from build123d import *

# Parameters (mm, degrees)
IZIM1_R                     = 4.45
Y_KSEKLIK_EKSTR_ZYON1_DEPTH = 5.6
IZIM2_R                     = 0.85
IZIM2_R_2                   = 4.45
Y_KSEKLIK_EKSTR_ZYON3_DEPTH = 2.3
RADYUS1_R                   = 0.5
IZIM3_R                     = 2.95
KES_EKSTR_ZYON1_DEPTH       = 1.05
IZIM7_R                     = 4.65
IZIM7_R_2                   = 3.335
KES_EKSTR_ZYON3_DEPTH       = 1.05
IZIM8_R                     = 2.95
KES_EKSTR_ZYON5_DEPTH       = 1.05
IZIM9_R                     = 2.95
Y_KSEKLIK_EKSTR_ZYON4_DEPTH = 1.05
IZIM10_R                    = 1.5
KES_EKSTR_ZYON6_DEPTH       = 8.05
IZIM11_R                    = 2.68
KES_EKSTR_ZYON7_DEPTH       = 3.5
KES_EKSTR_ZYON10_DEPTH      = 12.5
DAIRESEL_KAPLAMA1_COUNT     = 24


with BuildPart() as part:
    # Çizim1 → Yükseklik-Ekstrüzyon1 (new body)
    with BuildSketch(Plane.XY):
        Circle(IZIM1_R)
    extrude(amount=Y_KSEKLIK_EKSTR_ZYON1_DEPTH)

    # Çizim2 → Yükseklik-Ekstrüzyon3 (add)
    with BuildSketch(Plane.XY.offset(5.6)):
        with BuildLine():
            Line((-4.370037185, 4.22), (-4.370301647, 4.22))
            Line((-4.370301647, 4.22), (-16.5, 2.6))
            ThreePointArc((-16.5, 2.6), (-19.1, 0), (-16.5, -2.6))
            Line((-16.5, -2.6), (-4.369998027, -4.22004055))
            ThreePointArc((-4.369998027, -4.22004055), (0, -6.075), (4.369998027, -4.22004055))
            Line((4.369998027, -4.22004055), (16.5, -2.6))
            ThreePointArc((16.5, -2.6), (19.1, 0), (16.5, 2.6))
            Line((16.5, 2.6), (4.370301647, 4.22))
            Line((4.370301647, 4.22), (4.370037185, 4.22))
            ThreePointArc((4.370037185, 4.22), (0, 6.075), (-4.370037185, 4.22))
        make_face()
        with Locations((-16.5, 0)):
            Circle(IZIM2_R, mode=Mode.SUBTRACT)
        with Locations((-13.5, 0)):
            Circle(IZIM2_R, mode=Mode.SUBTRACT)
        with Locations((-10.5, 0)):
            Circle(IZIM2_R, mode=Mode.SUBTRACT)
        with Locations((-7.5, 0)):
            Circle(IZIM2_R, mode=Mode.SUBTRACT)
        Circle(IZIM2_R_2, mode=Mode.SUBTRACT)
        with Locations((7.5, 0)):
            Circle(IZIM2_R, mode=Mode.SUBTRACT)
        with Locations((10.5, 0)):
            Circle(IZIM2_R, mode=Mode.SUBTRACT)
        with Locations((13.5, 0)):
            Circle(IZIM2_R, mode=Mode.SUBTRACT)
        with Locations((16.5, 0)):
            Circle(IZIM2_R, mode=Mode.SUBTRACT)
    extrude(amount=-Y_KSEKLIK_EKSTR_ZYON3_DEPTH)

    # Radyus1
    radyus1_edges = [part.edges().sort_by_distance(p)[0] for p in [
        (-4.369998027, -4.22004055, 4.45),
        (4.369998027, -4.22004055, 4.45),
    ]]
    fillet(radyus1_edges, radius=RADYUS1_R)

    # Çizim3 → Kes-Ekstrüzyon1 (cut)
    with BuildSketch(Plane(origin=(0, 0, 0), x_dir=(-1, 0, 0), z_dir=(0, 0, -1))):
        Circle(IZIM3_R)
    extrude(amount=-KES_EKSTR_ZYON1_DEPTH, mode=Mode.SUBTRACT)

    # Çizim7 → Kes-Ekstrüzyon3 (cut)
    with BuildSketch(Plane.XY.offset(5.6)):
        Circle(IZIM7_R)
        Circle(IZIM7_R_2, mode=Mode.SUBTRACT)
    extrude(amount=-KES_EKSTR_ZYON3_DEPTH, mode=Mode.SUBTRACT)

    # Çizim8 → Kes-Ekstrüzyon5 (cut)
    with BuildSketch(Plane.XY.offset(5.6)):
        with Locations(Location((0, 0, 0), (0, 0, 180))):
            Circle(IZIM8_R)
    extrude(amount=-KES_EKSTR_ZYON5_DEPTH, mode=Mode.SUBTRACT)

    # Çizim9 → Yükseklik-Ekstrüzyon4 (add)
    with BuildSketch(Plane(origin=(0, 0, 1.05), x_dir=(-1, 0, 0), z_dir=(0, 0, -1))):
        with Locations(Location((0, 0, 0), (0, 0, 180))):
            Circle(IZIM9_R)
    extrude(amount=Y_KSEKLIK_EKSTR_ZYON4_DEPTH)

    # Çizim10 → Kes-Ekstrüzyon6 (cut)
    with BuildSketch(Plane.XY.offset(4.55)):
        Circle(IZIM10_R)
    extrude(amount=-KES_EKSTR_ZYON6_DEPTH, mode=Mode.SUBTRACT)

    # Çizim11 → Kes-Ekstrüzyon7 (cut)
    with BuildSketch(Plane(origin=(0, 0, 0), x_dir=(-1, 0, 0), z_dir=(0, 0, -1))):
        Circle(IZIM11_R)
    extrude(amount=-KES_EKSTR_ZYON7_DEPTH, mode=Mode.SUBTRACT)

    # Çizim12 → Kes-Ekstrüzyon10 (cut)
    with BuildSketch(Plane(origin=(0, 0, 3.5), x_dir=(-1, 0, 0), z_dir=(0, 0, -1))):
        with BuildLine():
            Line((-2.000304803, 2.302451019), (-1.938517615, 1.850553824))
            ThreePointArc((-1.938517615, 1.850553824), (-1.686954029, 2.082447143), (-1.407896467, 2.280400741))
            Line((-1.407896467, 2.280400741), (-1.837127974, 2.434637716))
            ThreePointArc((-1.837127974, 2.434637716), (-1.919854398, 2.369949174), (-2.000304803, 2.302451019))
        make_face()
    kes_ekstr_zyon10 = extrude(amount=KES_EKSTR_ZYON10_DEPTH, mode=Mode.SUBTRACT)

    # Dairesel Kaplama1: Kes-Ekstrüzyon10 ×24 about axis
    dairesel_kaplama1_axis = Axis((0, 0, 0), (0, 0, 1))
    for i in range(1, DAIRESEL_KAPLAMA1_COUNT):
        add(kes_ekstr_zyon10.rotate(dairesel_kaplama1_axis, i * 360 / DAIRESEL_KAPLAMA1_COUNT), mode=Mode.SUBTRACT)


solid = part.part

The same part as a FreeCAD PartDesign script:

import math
import FreeCAD as App
import Part
import Sketcher
Q = App.Units.Quantity


def edges_at(feature, points):
    """Names of the edges that pass closest to the given points."""
    edges = feature.Shape.Edges
    near = lambda p: min(range(len(edges)), key=lambda i: edges[i].distToShape(Part.Vertex(*p))[0])
    return sorted({f"Edge{near(p) + 1}" for p in points})

doc = App.newDocument("Part")
body = doc.addObject("PartDesign::Body", "Body")

# Sketch on XY plane
sketch1 = doc.addObject("Sketcher::SketchObject", "Sketch")
body.addObject(sketch1)
sketch1.AttachmentSupport = (doc.XY_Plane, [""])
sketch1.MapMode = "FlatFace"
sketch1.addGeometry(Part.Circle(App.Vector(0, 0, 0), App.Vector(0, 0, 1), 4.45), False)
sketch1.addConstraint([
    Sketcher.Constraint("Coincident", 0, 3, -1, 1),
    Sketcher.Constraint("Diameter", 0, Q("8.9 mm")),
])
pad1 = doc.addObject("PartDesign::Pad", "Pad")
body.addObject(pad1)
pad1.Profile = sketch1
pad1.Length = 5.6

# Sketch on XY plane
sketch2 = doc.addObject("Sketcher::SketchObject", "Sketch001")
body.addObject(sketch2)
sketch2.AttachmentSupport = (doc.XY_Plane, [""])
sketch2.MapMode = "FlatFace"
sketch2.AttachmentOffset = App.Placement(App.Vector(0, 0, 5.6), App.Rotation())
sketch2.addGeometry([
    Part.LineSegment(App.Vector(-4.370037, 4.22, 0), App.Vector(-4.370302, 4.22, 0)),  # 0
    Part.LineSegment(App.Vector(-4.370302, 4.22, 0), App.Vector(-16.5, 2.6, 0)),  # 1
    Part.ArcOfCircle(Part.Circle(App.Vector(-16.5, 0, 0), App.Vector(0, 0, 1), 2.6), math.radians(90), math.radians(270)),  # 2
    Part.LineSegment(App.Vector(-16.5, -2.6, 0), App.Vector(-4.369998, -4.220041, 0)),  # 3
    Part.ArcOfCircle(Part.Circle(App.Vector(0, 0, 0), App.Vector(0, 0, 1), 6.075), math.radians(-136.000119), math.radians(-43.999881)),  # 4
    Part.LineSegment(App.Vector(4.369998, -4.220041, 0), App.Vector(16.5, -2.6, 0)),  # 5
    Part.ArcOfCircle(Part.Circle(App.Vector(16.5, 0, 0), App.Vector(0, 0, 1), 2.6), math.radians(-90), math.radians(90)),  # 6
    Part.LineSegment(App.Vector(16.5, 2.6, 0), App.Vector(4.370302, 4.22, 0)),  # 7
    Part.LineSegment(App.Vector(4.370302, 4.22, 0), App.Vector(4.370037, 4.22, 0)),  # 8
    Part.ArcOfCircle(Part.Circle(App.Vector(0, 0, 0), App.Vector(0, 0, 1), 6.075), math.radians(43.99935), math.radians(136.00065)),  # 9
    Part.Circle(App.Vector(-16.5, 0, 0), App.Vector(0, 0, 1), 0.85),  # 10
    Part.Circle(App.Vector(-13.5, 0, 0), App.Vector(0, 0, 1), 0.85),  # 11
    Part.Circle(App.Vector(-10.5, 0, 0), App.Vector(0, 0, 1), 0.85),  # 12
    Part.Circle(App.Vector(-7.5, 0, 0), App.Vector(0, 0, 1), 0.85),  # 13
    Part.Circle(App.Vector(0, 0, 0), App.Vector(0, 0, 1), 4.45),  # 14
    Part.Circle(App.Vector(7.5, 0, 0), App.Vector(0, 0, 1), 0.85),  # 15
    Part.Circle(App.Vector(10.5, 0, 0), App.Vector(0, 0, 1), 0.85),  # 16
    Part.Circle(App.Vector(13.5, 0, 0), App.Vector(0, 0, 1), 0.85),  # 17
    Part.Circle(App.Vector(16.5, 0, 0), App.Vector(0, 0, 1), 0.85),  # 18
], False)
sketch2.addConstraint([
    Sketcher.Constraint("Coincident", 0, 2, 1, 1),
    Sketcher.Constraint("Coincident", 1, 2, 2, 1),
    Sketcher.Constraint("Coincident", 2, 2, 3, 1),
    Sketcher.Constraint("Coincident", 3, 2, 4, 1),
    Sketcher.Constraint("Coincident", 4, 2, 5, 1),
    Sketcher.Constraint("Coincident", 5, 2, 6, 1),
    Sketcher.Constraint("Coincident", 6, 2, 7, 1),
    Sketcher.Constraint("Coincident", 7, 2, 8, 1),
    Sketcher.Constraint("Coincident", 8, 2, 9, 1),
    Sketcher.Constraint("Coincident", 9, 2, 0, 1),
    Sketcher.Constraint("Horizontal", 0),
    Sketcher.Constraint("Horizontal", 8),
    Sketcher.Constraint("Coincident", 4, 3, -1, 1),
    Sketcher.Constraint("Coincident", 9, 3, -1, 1),
    Sketcher.Constraint("Coincident", 14, 3, -1, 1),
    Sketcher.Constraint("Coincident", 10, 3, 2, 3),
    Sketcher.Constraint("Coincident", 18, 3, 6, 3),
    Sketcher.Constraint("Equal", 2, 6),
    Sketcher.Constraint("Equal", 4, 9),
    Sketcher.Constraint("Equal", 10, 11),
    Sketcher.Constraint("Equal", 11, 12),
    Sketcher.Constraint("Equal", 12, 13),
    Sketcher.Constraint("Equal", 13, 15),
    Sketcher.Constraint("Equal", 15, 16),
    Sketcher.Constraint("Equal", 16, 17),
    Sketcher.Constraint("Equal", 17, 18),
    Sketcher.Constraint("Symmetric", 2, 3, 6, 3, -1, 1),
    Sketcher.Constraint("Symmetric", 13, 3, 15, 3, -1, 1),
    Sketcher.Constraint("Symmetric", 12, 3, 16, 3, -1, 1),
    Sketcher.Constraint("Symmetric", 11, 3, 17, 3, -1, 1),
    Sketcher.Constraint("Symmetric", 2, 2, 5, 2, -2),
    Sketcher.Constraint("Symmetric", 0, 2, 7, 2, -2),
    Sketcher.Constraint("PointOnObject", 11, 3, -1),
    Sketcher.Constraint("PointOnObject", 12, 3, -1),
    Sketcher.Constraint("PointOnObject", 13, 3, -1),
    Sketcher.Constraint("Parallel", 1, 5),
    Sketcher.Constraint("Parallel", 3, 7),
    Sketcher.Constraint("Horizontal", 3, 2, 4, 2),
    Sketcher.Constraint("Vertical", 10, 3, 1, 2),
    Sketcher.Constraint("Vertical", 1, 2, 2, 2),
    Sketcher.Constraint("Diameter", 10, Q("1.7 mm")),
    Sketcher.Constraint("Diameter", 14, Q("8.9 mm")),
    Sketcher.Constraint("Radius", 2, Q("2.6 mm")),
    Sketcher.Constraint("Radius", 4, Q("6.075 mm")),
    Sketcher.Constraint("DistanceX", 2, 3, 6, 3, Q("33 mm")),
    Sketcher.Constraint("DistanceX", 2, 3, 11, 3, Q("3 mm")),
    Sketcher.Constraint("DistanceX", 11, 3, 12, 3, Q("3 mm")),
    Sketcher.Constraint("DistanceX", 12, 3, 13, 3, Q("3 mm")),
    Sketcher.Constraint("DistanceY", -1, 1, 0, 2, Q("4.22 mm")),
    Sketcher.Constraint("DistanceX", 3, 2, -1, 1, Q("4.369998 mm")),
])
pad2 = doc.addObject("PartDesign::Pad", "Pad001")
body.addObject(pad2)
pad2.Profile = sketch2
pad2.Length = 2.3
pad2.Reversed = True
doc.recompute()

fillet = doc.addObject("PartDesign::Fillet", "Fillet")
body.addObject(fillet)
fillet.Base = (pad2, edges_at(pad2, [(-4.37, -4.22, 4.45), (4.37, -4.22, 4.45)]))
fillet.Radius = 0.5

# Sketch on XY plane
sketch3 = doc.addObject("Sketcher::SketchObject", "Sketch002")
body.addObject(sketch3)
sketch3.AttachmentSupport = (doc.XY_Plane, [""])
sketch3.MapMode = "FlatFace"
sketch3.addGeometry(Part.Circle(App.Vector(0, 0, 0), App.Vector(0, 0, 1), 2.95), False)
sketch3.addConstraint([
    Sketcher.Constraint("Coincident", 0, 3, -1, 1),
    Sketcher.Constraint("Diameter", 0, Q("5.9 mm")),
])
pocket1 = doc.addObject("PartDesign::Pocket", "Pocket")
body.addObject(pocket1)
pocket1.Profile = sketch3
pocket1.Length = 1.05
pocket1.Reversed = True

# Sketch on XY plane
sketch4 = doc.addObject("Sketcher::SketchObject", "Sketch003")
body.addObject(sketch4)
sketch4.AttachmentSupport = (doc.XY_Plane, [""])
sketch4.MapMode = "FlatFace"
sketch4.AttachmentOffset = App.Placement(App.Vector(0, 0, 5.6), App.Rotation())
sketch4.addGeometry([
    Part.Circle(App.Vector(0, 0, 0), App.Vector(0, 0, 1), 4.65),
    Part.Circle(App.Vector(0, 0, 0), App.Vector(0, 0, 1), 3.335),
], False)
sketch4.addConstraint([
    Sketcher.Constraint("Coincident", 0, 3, -1, 1),
    Sketcher.Constraint("Coincident", 1, 3, -1, 1),
    Sketcher.Constraint("Diameter", 0, Q("9.3 mm")),
    Sketcher.Constraint("Diameter", 1, Q("6.67 mm")),
])
pocket2 = doc.addObject("PartDesign::Pocket", "Pocket001")
body.addObject(pocket2)
pocket2.Profile = sketch4
pocket2.Length = 1.05

# Sketch on XY plane
sketch5 = doc.addObject("Sketcher::SketchObject", "Sketch004")
body.addObject(sketch5)
sketch5.AttachmentSupport = (doc.XY_Plane, [""])
sketch5.MapMode = "FlatFace"
sketch5.AttachmentOffset = App.Placement(App.Vector(0, 0, 5.6), App.Rotation())
sketch5.addGeometry(Part.Circle(App.Vector(0, 0, 0), App.Vector(0, 0, 1), 2.95), False)
sketch5.addConstraint([
    Sketcher.Constraint("Coincident", 0, 3, -1, 1),
    Sketcher.Constraint("Diameter", 0, Q("5.9 mm")),
])
pocket3 = doc.addObject("PartDesign::Pocket", "Pocket002")
body.addObject(pocket3)
pocket3.Profile = sketch5
pocket3.Length = 1.05

# Sketch on XY plane
sketch6 = doc.addObject("Sketcher::SketchObject", "Sketch005")
body.addObject(sketch6)
sketch6.AttachmentSupport = (doc.XY_Plane, [""])
sketch6.MapMode = "FlatFace"
sketch6.AttachmentOffset = App.Placement(App.Vector(0, 0, 1.05), App.Rotation())
sketch6.addGeometry(Part.Circle(App.Vector(0, 0, 0), App.Vector(0, 0, 1), 2.95), False)
sketch6.addConstraint([
    Sketcher.Constraint("Coincident", 0, 3, -1, 1),
    Sketcher.Constraint("Diameter", 0, Q("5.9 mm")),
])
pad3 = doc.addObject("PartDesign::Pad", "Pad002")
body.addObject(pad3)
pad3.Profile = sketch6
pad3.Length = 1.05
pad3.Reversed = True

# Sketch on XY plane
sketch7 = doc.addObject("Sketcher::SketchObject", "Sketch006")
body.addObject(sketch7)
sketch7.AttachmentSupport = (doc.XY_Plane, [""])
sketch7.MapMode = "FlatFace"
sketch7.AttachmentOffset = App.Placement(App.Vector(0, 0, 4.55), App.Rotation())
sketch7.addGeometry(Part.Circle(App.Vector(0, 0, 0), App.Vector(0, 0, 1), 1.5), False)
sketch7.addConstraint([
    Sketcher.Constraint("Coincident", 0, 3, -1, 1),
    Sketcher.Constraint("Diameter", 0, Q("3 mm")),
])
pocket4 = doc.addObject("PartDesign::Pocket", "Pocket003")
body.addObject(pocket4)
pocket4.Profile = sketch7
pocket4.Length = 8.05

# Sketch on XY plane
sketch8 = doc.addObject("Sketcher::SketchObject", "Sketch007")
body.addObject(sketch8)
sketch8.AttachmentSupport = (doc.XY_Plane, [""])
sketch8.MapMode = "FlatFace"
sketch8.addGeometry(Part.Circle(App.Vector(0, 0, 0), App.Vector(0, 0, 1), 2.68), False)
sketch8.addConstraint([
    Sketcher.Constraint("Coincident", 0, 3, -1, 1),
    Sketcher.Constraint("Diameter", 0, Q("5.36 mm")),
])
pocket5 = doc.addObject("PartDesign::Pocket", "Pocket004")
body.addObject(pocket5)
pocket5.Profile = sketch8
pocket5.Length = 3.5
pocket5.Reversed = True

# Sketch on XY plane
sketch9 = doc.addObject("Sketcher::SketchObject", "Sketch008")
body.addObject(sketch9)
sketch9.AttachmentSupport = (doc.XY_Plane, [""])
sketch9.MapMode = "FlatFace"
sketch9.AttachmentOffset = App.Placement(App.Vector(0, 0, 3.5), App.Rotation())
sketch9.addGeometry([
    Part.LineSegment(App.Vector(2.000305, 2.302451, 0), App.Vector(1.938518, 1.850554, 0)),
    Part.ArcOfCircle(Part.Circle(App.Vector(0, 0, 0), App.Vector(0, 0, 1), 2.68), math.radians(43.67011), math.radians(58.309235)),
    Part.LineSegment(App.Vector(1.407896, 2.280401, 0), App.Vector(1.837128, 2.434638, 0)),
    Part.ArcOfCircle(Part.Circle(App.Vector(-0.000001, -0.000001, 0), App.Vector(0, 0, 1), 3.050001), math.radians(49.016806), math.radians(52.962539)),
], False)
sketch9.addConstraint([
    Sketcher.Constraint("Coincident", 0, 2, 1, 1),
    Sketcher.Constraint("Coincident", 1, 2, 2, 1),
    Sketcher.Constraint("Coincident", 2, 2, 3, 2),
    Sketcher.Constraint("Coincident", 3, 1, 0, 1),
    Sketcher.Constraint("Coincident", 1, 3, -1, 1),
    Sketcher.Constraint("Coincident", 3, 3, -1, 1),
    Sketcher.Constraint("Equal", 0, 2),
    Sketcher.Constraint("Radius", 1, Q("2.68 mm")),
    Sketcher.Constraint("Radius", 3, Q("3.050001 mm")),
    Sketcher.Constraint("Distance", 0, Q("0.456102 mm")),
    Sketcher.Constraint("DistanceY", -1, 1, 1, 2, Q("2.280401 mm")),
    Sketcher.Constraint("DistanceY", -1, 1, 3, 1, Q("2.302451 mm")),
])
pocket6 = doc.addObject("PartDesign::Pocket", "Pocket005")
body.addObject(pocket6)
pocket6.Profile = sketch9
pocket6.Length = 12.5
doc.recompute()

polarpattern = doc.addObject("PartDesign::PolarPattern", "PolarPattern")
body.addObject(polarpattern)
polarpattern.Originals = [pocket6]
polarpattern.Axis = (doc.Z_Axis, [""])
polarpattern.Angle = 360
polarpattern.Occurrences = 24
body.Tip = polarpattern

doc.recompute()
